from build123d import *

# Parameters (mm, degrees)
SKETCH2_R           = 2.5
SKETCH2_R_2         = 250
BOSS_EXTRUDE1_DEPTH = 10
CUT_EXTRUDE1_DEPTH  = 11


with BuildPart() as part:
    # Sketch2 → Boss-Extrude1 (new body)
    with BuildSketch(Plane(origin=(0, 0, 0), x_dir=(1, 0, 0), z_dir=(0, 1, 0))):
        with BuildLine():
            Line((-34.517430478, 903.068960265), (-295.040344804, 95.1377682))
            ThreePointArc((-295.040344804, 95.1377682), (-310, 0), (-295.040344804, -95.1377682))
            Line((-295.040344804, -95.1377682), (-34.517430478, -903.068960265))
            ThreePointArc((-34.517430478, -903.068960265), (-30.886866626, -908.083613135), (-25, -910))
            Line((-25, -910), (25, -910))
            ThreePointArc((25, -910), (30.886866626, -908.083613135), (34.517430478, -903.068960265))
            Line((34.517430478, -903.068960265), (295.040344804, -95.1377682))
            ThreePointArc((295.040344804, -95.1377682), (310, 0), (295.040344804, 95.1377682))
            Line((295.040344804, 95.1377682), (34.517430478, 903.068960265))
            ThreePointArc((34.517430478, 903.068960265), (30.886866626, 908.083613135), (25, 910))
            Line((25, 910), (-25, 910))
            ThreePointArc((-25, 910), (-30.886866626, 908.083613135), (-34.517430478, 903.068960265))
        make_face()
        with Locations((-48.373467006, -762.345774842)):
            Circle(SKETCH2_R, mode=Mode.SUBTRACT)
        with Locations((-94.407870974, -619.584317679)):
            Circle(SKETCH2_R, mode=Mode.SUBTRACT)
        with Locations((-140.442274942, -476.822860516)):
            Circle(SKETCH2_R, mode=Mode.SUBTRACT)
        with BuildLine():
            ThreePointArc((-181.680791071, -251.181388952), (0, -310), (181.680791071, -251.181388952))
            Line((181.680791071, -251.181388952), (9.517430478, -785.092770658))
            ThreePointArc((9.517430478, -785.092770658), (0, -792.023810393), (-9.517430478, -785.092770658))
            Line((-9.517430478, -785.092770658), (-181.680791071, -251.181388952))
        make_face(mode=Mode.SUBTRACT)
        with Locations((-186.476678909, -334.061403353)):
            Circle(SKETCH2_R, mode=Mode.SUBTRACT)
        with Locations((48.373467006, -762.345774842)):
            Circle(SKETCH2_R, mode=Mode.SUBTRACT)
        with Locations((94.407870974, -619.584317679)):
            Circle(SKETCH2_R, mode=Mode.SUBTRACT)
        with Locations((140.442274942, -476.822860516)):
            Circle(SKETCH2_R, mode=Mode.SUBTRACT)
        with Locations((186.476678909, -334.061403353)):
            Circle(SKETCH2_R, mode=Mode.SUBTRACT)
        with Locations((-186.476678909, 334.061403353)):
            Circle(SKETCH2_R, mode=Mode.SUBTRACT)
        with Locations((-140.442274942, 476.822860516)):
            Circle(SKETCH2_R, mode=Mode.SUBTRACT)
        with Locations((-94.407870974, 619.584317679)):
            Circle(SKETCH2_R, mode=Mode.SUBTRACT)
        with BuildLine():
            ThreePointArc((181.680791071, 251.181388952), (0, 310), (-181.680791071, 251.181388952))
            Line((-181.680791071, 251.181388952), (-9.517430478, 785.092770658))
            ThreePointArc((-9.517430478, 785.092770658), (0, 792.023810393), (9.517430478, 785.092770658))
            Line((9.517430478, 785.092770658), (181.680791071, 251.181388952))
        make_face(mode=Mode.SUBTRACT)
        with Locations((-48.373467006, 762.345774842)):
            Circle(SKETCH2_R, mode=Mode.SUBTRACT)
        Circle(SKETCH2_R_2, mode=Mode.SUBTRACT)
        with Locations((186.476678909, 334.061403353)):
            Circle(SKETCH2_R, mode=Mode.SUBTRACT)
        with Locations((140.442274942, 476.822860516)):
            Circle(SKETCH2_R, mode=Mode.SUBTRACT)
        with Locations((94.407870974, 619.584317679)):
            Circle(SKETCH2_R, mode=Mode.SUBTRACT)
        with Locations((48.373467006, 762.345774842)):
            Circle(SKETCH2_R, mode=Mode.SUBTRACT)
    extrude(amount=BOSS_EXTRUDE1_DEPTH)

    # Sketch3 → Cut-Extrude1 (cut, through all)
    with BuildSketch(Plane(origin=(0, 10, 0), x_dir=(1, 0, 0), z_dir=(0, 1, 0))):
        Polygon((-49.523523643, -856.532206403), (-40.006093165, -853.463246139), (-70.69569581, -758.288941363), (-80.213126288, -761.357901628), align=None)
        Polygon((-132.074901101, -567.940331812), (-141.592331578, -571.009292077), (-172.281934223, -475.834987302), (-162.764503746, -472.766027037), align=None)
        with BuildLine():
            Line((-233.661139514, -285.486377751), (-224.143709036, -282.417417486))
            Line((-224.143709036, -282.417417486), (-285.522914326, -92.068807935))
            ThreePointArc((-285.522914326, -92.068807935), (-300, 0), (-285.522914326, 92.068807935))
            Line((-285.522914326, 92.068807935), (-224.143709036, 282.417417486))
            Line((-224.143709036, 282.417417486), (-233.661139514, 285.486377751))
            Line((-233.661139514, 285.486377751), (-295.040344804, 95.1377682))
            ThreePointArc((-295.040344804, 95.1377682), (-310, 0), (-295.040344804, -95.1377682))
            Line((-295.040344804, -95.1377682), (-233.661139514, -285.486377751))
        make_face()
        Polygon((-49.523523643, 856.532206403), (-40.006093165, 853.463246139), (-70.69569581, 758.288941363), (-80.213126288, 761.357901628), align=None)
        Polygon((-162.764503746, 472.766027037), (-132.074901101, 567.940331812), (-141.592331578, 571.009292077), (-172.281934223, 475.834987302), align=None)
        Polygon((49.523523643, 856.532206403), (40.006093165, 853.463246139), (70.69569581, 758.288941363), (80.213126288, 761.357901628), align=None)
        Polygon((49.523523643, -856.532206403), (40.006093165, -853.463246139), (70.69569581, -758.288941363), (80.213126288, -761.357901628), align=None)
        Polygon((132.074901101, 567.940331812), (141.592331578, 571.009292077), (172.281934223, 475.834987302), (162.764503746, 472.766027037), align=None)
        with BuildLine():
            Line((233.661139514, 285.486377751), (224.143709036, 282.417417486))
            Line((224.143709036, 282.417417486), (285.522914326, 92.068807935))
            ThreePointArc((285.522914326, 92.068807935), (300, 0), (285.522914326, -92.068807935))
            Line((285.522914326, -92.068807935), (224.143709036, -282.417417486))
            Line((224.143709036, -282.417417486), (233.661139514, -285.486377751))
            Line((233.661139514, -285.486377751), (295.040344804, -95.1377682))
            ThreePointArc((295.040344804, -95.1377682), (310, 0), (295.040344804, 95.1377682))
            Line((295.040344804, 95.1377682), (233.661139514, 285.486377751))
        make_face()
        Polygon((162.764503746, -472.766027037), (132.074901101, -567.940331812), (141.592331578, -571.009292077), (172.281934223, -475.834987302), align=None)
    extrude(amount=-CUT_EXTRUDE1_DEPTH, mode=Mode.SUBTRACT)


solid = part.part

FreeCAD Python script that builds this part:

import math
import FreeCAD as App
import Part
import Sketcher
from FreeCAD import Vector


def add_polygon(sketch, points):
    """Adds a closed chain of lines whose ends are joined by coincident constraints."""
    first, n = sketch.GeometryCount, len(points)
    for a, b in zip(points, points[1:] + points[:1]):
        sketch.addGeometry(Part.LineSegment(App.Vector(*a, 0), App.Vector(*b, 0)), False)
    for i in range(n):
        sketch.addConstraint(Sketcher.Constraint("Coincident", first + i, 2, first + (i + 1) % n, 1))

doc = App.newDocument("Part")
params = doc.addObject("Spreadsheet::Sheet", "Params")
for row, (alias, value) in enumerate([
    ("sketch1_diameter", "5 mm"),
    ("sketch1_diameter2", "500 mm"),
    ("sketch1_radius", "310 mm"),
    ("sketch1_radius2", "10 mm"),
    ("sketch1_width", "50 mm"),
    ("pad1_length", "10 mm"),
    ("sketch2_radius", "300 mm"),
    ("sketch2_radius2", "310 mm"),
    ("sketch2_length", "100 mm"),
    ("sketch2_length2", "200 mm"),
], start=1):
    params.set(f"A{row}", alias)
    params.set(f"B{row}", "=" + value)
    params.setAlias(f"B{row}", alias)

body = doc.addObject("PartDesign::Body", "Body")

# Sketch on XZ plane
sketch1 = body.newObject("Sketcher::SketchObject", "Sketch")
sketch1.AttachmentSupport = (doc.getObject("XZ_Plane"), [""])
sketch1.MapMode = "FlatFace"
sketch1.addGeometry([
    Part.LineSegment(Vector(-34.5, -903.1, 0), Vector(-295, -95.1, 0)),  # 0
    Part.ArcOfCircle(Part.Circle(Vector(0, 0, 0), Vector(0, 0, 1), 310), math.radians(162), math.radians(198)),  # 1
    Part.LineSegment(Vector(-295, 95.1, 0), Vector(-34.5, 903.1, 0)),  # 2
    Part.ArcOfCircle(Part.Circle(Vector(-25, 900, 0), Vector(0, 0, 1), 10), math.radians(90), math.radians(162)),  # 3
    Part.LineSegment(Vector(-25, 910, 0), Vector(25, 910, 0)),  # 4
    Part.ArcOfCircle(Part.Circle(Vector(25, 900, 0), Vector(0, 0, 1), 10), math.radians(18), math.radians(90)),  # 5
    Part.LineSegment(Vector(34.5, 903.1, 0), Vector(295, 95.1, 0)),  # 6
    Part.ArcOfCircle(Part.Circle(Vector(0, 0, 0), Vector(0, 0, 1), 310), math.radians(-18), math.radians(18)),  # 7
    Part.LineSegment(Vector(295, -95.1, 0), Vector(34.5, -903.1, 0)),  # 8
    Part.ArcOfCircle(Part.Circle(Vector(25, -900, 0), Vector(0, 0, 1), 10), math.radians(-90), math.radians(-18)),  # 9
    Part.LineSegment(Vector(25, -910, 0), Vector(-25, -910, 0)),  # 10
    Part.ArcOfCircle(Part.Circle(Vector(-25, -900, 0), Vector(0, 0, 1), 10), math.radians(-162), math.radians(-90)),  # 11
    Part.Circle(Vector(-140.4, 476.8, 0), Vector(0, 0, 1), 2.5),  # 12
    Part.Circle(Vector(-94.4, 619.6, 0), Vector(0, 0, 1), 2.5),  # 13
    Part.Circle(Vector(-48.4, 762.3, 0), Vector(0, 0, 1), 2.5),  # 14
    Part.Circle(Vector(-186.5, 334.1, 0), Vector(0, 0, 1), 2.5),  # 15
    Part.Circle(Vector(48.4, 762.3, 0), Vector(0, 0, 1), 2.5),  # 16
    Part.Circle(Vector(94.4, 619.6, 0), Vector(0, 0, 1), 2.5),  # 17
    Part.LineSegment(Vector(-9.5, 785.1, 0), Vector(-181.7, 251.2, 0)),  # 18
    Part.ArcOfCircle(Part.Circle(Vector(0, 0, 0), Vector(0, 0, 1), 310), math.radians(54), math.radians(126)),  # 19
    Part.LineSegment(Vector(181.7, 251.2, 0), Vector(9.5, 785.1, 0)),  # 20
    Part.ArcOfCircle(Part.Circle(Vector(0, 782, 0), Vector(0, 0, 1), 10), math.radians(18), math.radians(162)),  # 21
    Part.Circle(Vector(140.4, 476.8, 0), Vector(0, 0, 1), 2.5),  # 22
    Part.Circle(Vector(186.5, 334.1, 0), Vector(0, 0, 1), 2.5),  # 23
    Part.Circle(Vector(-186.5, -334.1, 0), Vector(0, 0, 1), 2.5),  # 24
    Part.Circle(Vector(-140.4, -476.8, 0), Vector(0, 0, 1), 2.5),  # 25
    Part.Circle(Vector(-94.4, -619.6, 0), Vector(0, 0, 1), 2.5),  # 26
    Part.Circle(Vector(-48.4, -762.3, 0), Vector(0, 0, 1), 2.5),  # 27
    Part.Circle(Vector(0, 0, 0), Vector(0, 0, 1), 250),  # 28
    Part.Circle(Vector(186.5, -334.1, 0), Vector(0, 0, 1), 2.5),  # 29
    Part.LineSegment(Vector(9.5, -785.1, 0), Vector(181.7, -251.2, 0)),  # 30
    Part.ArcOfCircle(Part.Circle(Vector(0, 0, 0), Vector(0, 0, 1), 310), math.radians(-126), math.radians(-54)),  # 31
    Part.LineSegment(Vector(-181.7, -251.2, 0), Vector(-9.5, -785.1, 0)),  # 32
    Part.ArcOfCircle(Part.Circle(Vector(0, -782, 0), Vector(0, 0, 1), 10), math.radians(-162), math.radians(-18)),  # 33
    Part.Circle(Vector(48.4, -762.3, 0), Vector(0, 0, 1), 2.5),  # 34
    Part.Circle(Vector(94.4, -619.6, 0), Vector(0, 0, 1), 2.5),  # 35
    Part.Circle(Vector(140.4, -476.8, 0), Vector(0, 0, 1), 2.5),  # 36
], False)
sketch1.addConstraint([
    Sketcher.Constraint("Tangent", 0, 2, 1, 2),
    Sketcher.Constraint("Tangent", 1, 1, 2, 1),
    Sketcher.Constraint("Tangent", 2, 2, 3, 2),
    Sketcher.Constraint("Tangent", 3, 1, 4, 1),
    Sketcher.Constraint("Tangent", 4, 2, 5, 2),
    Sketcher.Constraint("Tangent", 5, 1, 6, 1),
    Sketcher.Constraint("Tangent", 6, 2, 7, 2),
    Sketcher.Constraint("Tangent", 7, 1, 8, 1),
    Sketcher.Constraint("Tangent", 8, 2, 9, 2),
    Sketcher.Constraint("Tangent", 9, 1, 10, 1),
    Sketcher.Constraint("Tangent", 10, 2, 11, 2),
    Sketcher.Constraint("Tangent", 11, 1, 0, 1),
    Sketcher.Constraint("Coincident", 18, 2, 19, 2),
    Sketcher.Constraint("Coincident", 19, 1, 20, 1),
    Sketcher.Constraint("Tangent", 20, 2, 21, 1),
    Sketcher.Constraint("Tangent", 21, 2, 18, 1),
    Sketcher.Constraint("Coincident", 30, 2, 31, 2),
    Sketcher.Constraint("Coincident", 31, 1, 32, 1),
    Sketcher.Constraint("Tangent", 32, 2, 33, 1),
    Sketcher.Constraint("Tangent", 33, 2, 30, 1),
    Sketcher.Constraint("Horizontal", 4),
    Sketcher.Constraint("Horizontal", 10),
    Sketcher.Constraint("Coincident", 1, 3, -1, 1),
    Sketcher.Constraint("Coincident", 7, 3, -1, 1),
    Sketcher.Constraint("Coincident", 19, 3, -1, 1),
    Sketcher.Constraint("Coincident", 28, 3, -1, 1),
    Sketcher.Constraint("Coincident", 31, 3, -1, 1),
    Sketcher.Constraint("Equal", 3, 5),
    Sketcher.Constraint("Equal", 1, 7),
    Sketcher.Constraint("Equal", 5, 9),
    Sketcher.Constraint("Equal", 9, 11),
    Sketcher.Constraint("Equal", 12, 13),
    Sketcher.Constraint("Equal", 13, 14),
    Sketcher.Constraint("Equal", 14, 15),
    Sketcher.Constraint("Equal", 15, 16),
    Sketcher.Constraint("Equal", 16, 17),
    Sketcher.Constraint("Equal", 7, 19),
    Sketcher.Constraint("Equal", 11, 21),
    Sketcher.Constraint("Equal", 17, 22),
    Sketcher.Constraint("Equal", 22, 23),
    Sketcher.Constraint("Equal", 23, 24),
    Sketcher.Constraint("Equal", 24, 25),
    Sketcher.Constraint("Equal", 25, 26),
    Sketcher.Constraint("Equal", 26, 27),
    Sketcher.Constraint("Equal", 27, 29),
    Sketcher.Constraint("Equal", 19, 31),
    Sketcher.Constraint("Equal", 21, 33),
    Sketcher.Constraint("Equal", 29, 34),
    Sketcher.Constraint("Equal", 34, 35),
    Sketcher.Constraint("Equal", 35, 36),
    Sketcher.Constraint("Symmetric", 3, 3, 9, 3, -1, 1),
    Sketcher.Constraint("Symmetric", 23, 3, 24, 3, -1, 1),
    Sketcher.Constraint("Symmetric", 22, 3, 25, 3, -1, 1),
    Sketcher.Constraint("Symmetric", 17, 3, 26, 3, -1, 1),
    Sketcher.Constraint("Symmetric", 16, 3, 27, 3, -1, 1),
    Sketcher.Constraint("Symmetric", 15, 3, 29, 3, -1, 1),
    Sketcher.Constraint("Symmetric", 21, 3, 33, 3, -1, 1),
    Sketcher.Constraint("Symmetric", 14, 3, 34, 3, -1, 1),
    Sketcher.Constraint("Symmetric", 13, 3, 35, 3, -1, 1),
    Sketcher.Constraint("Symmetric", 12, 3, 36, 3, -1, 1),
    Sketcher.Constraint("Symmetric", 14, 3, 16, 3, -2),
    Sketcher.Constraint("Symmetric", 13, 3, 17, 3, -2),
    Sketcher.Constraint("Symmetric", 12, 3, 22, 3, -2),
    Sketcher.Constraint("Symmetric", 15, 3, 23, 3, -2),
    Sketcher.Constraint("PointOnObject", 21, 3, -2),
    Sketcher.Constraint("Parallel", 0, 6),
    Sketcher.Constraint("Parallel", 8, 18),
    Sketcher.Constraint("Parallel", 6, 20),
    Sketcher.Constraint("Parallel", 18, 30),
    Sketcher.Constraint("Parallel", 20, 32),
    Sketcher.Constraint("Vertical", 5, 3, 9, 3),
    Sketcher.Constraint("Diameter", 12, 5.0),
    Sketcher.Constraint("Diameter", 28, 500.0),
    Sketcher.Constraint("Radius", 1, 310.0),
    Sketcher.Constraint("Radius", 3, 10.0),
    Sketcher.Constraint("DistanceX", 4, 1, 4, 2, 50.0),
    Sketcher.Constraint("DistanceY", -1, 1, 3, 3, 900.0),
    Sketcher.Constraint("DistanceY", -1, 1, 12, 3, 476.822861),
    Sketcher.Constraint("DistanceX", 13, 3, -1, 1, 94.407871),
    Sketcher.Constraint("DistanceX", 15, 3, -1, 1, 186.476679),
    Sketcher.Constraint("DistanceY", -1, 1, 21, 3, 782.02381),
    Sketcher.Constraint("DistanceX", 15, 3, 14, 3, 138.103212),
    Sketcher.Constraint("DistanceY", 15, 3, 14, 3, 428.284371),
    Sketcher.Constraint("DistanceX", 12, 3, 16, 3, 188.815742),
    Sketcher.Constraint("DistanceY", -1, 1, 13, 3, 619.584318),
    Sketcher.Constraint("DistanceY", -1, 1, 14, 3, 762.345775),
])
sketch1.setExpression("Constraints[71]", "Params.sketch1_diameter")
sketch1.setExpression("Constraints[72]", "Params.sketch1_diameter2")
sketch1.setExpression("Constraints[73]", "Params.sketch1_radius")
sketch1.setExpression("Constraints[74]", "Params.sketch1_radius2")
sketch1.setExpression("Constraints[75]", "Params.sketch1_width")
pad1 = body.newObject("PartDesign::Pad", "Pad")
pad1.Profile = sketch1
pad1.setExpression("Length", "Params.pad1_length")
pad1.Reversed = True

# Sketch on XZ plane
sketch2 = body.newObject("Sketcher::SketchObject", "Sketch001")
sketch2.AttachmentSupport = (doc.getObject("XZ_Plane"), [""])
sketch2.MapMode = "FlatFace"
sketch2.AttachmentOffset = App.Placement(Vector(0, 0, -10), App.Rotation())
add_polygon(sketch2, [(-49.523524, 856.532206), (-40.006093, 853.463246), (-70.695696, 758.288941), (-80.213126, 761.357902)])  # lines 0-3
add_polygon(sketch2, [(-141.592332, 571.009292), (-132.074901, 567.940332), (-162.764504, 472.766027), (-172.281934, 475.834987)])  # lines 4-7
sketch2.addGeometry(Part.LineSegment(Vector(-233.66114, 285.486378, 0), Vector(-224.143709, 282.417417, 0)), False)  # 8
sketch2.addGeometry(Part.LineSegment(Vector(-224.143709, 282.417417, 0), Vector(-285.522914, 92.068808, 0)), False)  # 9
sketch2.addGeometry(Part.ArcOfCircle(Part.Circle(Vector(0, 0, 0), Vector(0, 0, 1), 300), math.radians(162.12773), math.radians(197.87227)), False)  # 10
sketch2.addGeometry(Part.LineSegment(Vector(-285.522914, -92.068808, 0), Vector(-224.143709, -282.417417, 0)), False)  # 11
sketch2.addGeometry(Part.LineSegment(Vector(-224.143709, -282.417417, 0), Vector(-233.66114, -285.486378, 0)), False)  # 12
sketch2.addGeometry(Part.LineSegment(Vector(-233.66114, -285.486378, 0), Vector(-295.040345, -95.137768, 0)), False)  # 13
sketch2.addGeometry(Part.ArcOfCircle(Part.Circle(Vector(0, 0, 0), Vector(0, 0, 1), 310), math.radians(162.12773), math.radians(197.87227)), False)  # 14
sketch2.addGeometry(Part.LineSegment(Vector(-295.040345, 95.137768, 0), Vector(-233.66114, 285.486378, 0)), False)  # 15
add_polygon(sketch2, [(-40.006093, -853.463246), (-49.523524, -856.532206), (-80.213126, -761.357902), (-70.695696, -758.288941)])  # lines 16-19
add_polygon(sketch2, [(-162.764504, -472.766027), (-132.074901, -567.940332), (-141.592332, -571.009292), (-172.281934, -475.834987)])  # lines 20-23
add_polygon(sketch2, [(49.523524, -856.532206), (40.006093, -853.463246), (70.695696, -758.288941), (80.213126, -761.357902)])  # lines 24-27
add_polygon(sketch2, [(40.006093, 853.463246), (49.523524, 856.532206), (80.213126, 761.357902), (70.695696, 758.288941)])  # lines 28-31
add_polygon(sketch2, [(141.592332, -571.009292), (132.074901, -567.940332), (162.764504, -472.766027), (172.281934, -475.834987)])  # lines 32-35
sketch2.addGeometry(Part.LineSegment(Vector(233.66114, -285.486378, 0), Vector(224.143709, -282.417417, 0)), False)  # 36
sketch2.addGeometry(Part.LineSegment(Vector(224.143709, -282.417417, 0), Vector(285.522914, -92.068808, 0)), False)  # 37
sketch2.addGeometry(Part.ArcOfCircle(Part.Circle(Vector(0, 0, 0), Vector(0, 0, 1), 300), math.radians(-17.87227), math.radians(17.87227)), False)  # 38
sketch2.addGeometry(Part.LineSegment(Vector(285.522914, 92.068808, 0), Vector(224.143709, 282.417417, 0)), False)  # 39
sketch2.addGeometry(Part.LineSegment(Vector(224.143709, 282.417417, 0), Vector(233.66114, 285.486378, 0)), False)  # 40
sketch2.addGeometry(Part.LineSegment(Vector(233.66114, 285.486378, 0), Vector(295.040345, 95.137768, 0)), False)  # 41
sketch2.addGeometry(Part.ArcOfCircle(Part.Circle(Vector(0, 0, 0), Vector(0, 0, 1), 310), math.radians(-17.87227), math.radians(17.87227)), False)  # 42
sketch2.addGeometry(Part.LineSegment(Vector(295.040345, -95.137768, 0), Vector(233.66114, -285.486378, 0)), False)  # 43
add_polygon(sketch2, [(162.764504, 472.766027), (132.074901, 567.940332), (141.592332, 571.009292), (172.281934, 475.834987)])  # lines 44-47
sketch2.addConstraint([
    Sketcher.Constraint("Coincident", 8, 2, 9, 1),
    Sketcher.Constraint("Tangent", 9, 2, 10, 1),
    Sketcher.Constraint("Tangent", 10, 2, 11, 1),
    Sketcher.Constraint("Coincident", 11, 2, 12, 1),
    Sketcher.Constraint("Coincident", 12, 2, 13, 1),
    Sketcher.Constraint("Tangent", 13, 2, 14, 2),
    Sketcher.Constraint("Tangent", 14, 1, 15, 1),
    Sketcher.Constraint("Coincident", 15, 2, 8, 1),
    Sketcher.Constraint("Coincident", 36, 2, 37, 1),
    Sketcher.Constraint("Tangent", 37, 2, 38, 1),
    Sketcher.Constraint("Tangent", 38, 2, 39, 1),
    Sketcher.Constraint("Coincident", 39, 2, 40, 1),
    Sketcher.Constraint("Coincident", 40, 2, 41, 1),
    Sketcher.Constraint("Tangent", 41, 2, 42, 2),
    Sketcher.Constraint("Tangent", 42, 1, 43, 1),
    Sketcher.Constraint("Coincident", 43, 2, 36, 1),
    Sketcher.Constraint("Coincident", 10, 3, -1, 1),
    Sketcher.Constraint("Coincident", 14, 3, -1, 1),
    Sketcher.Constraint("Coincident", 38, 3, -1, 1),
    Sketcher.Constraint("Coincident", 42, 3, -1, 1),
    Sketcher.Constraint("Equal", 10, 38),
    Sketcher.Constraint("Equal", 14, 42),
    Sketcher.Constraint("Symmetric", 0, 2, 24, 2, -1, 1),
    Sketcher.Constraint("Symmetric", 1, 2, 25, 2, -1, 1),
    Sketcher.Constraint("Symmetric", 2, 2, 26, 2, -1, 1),
    Sketcher.Constraint("Symmetric", 3, 2, 27, 2, -1, 1),
    Sketcher.Constraint("Symmetric", 16, 2, 28, 2, -1, 1),
    Sketcher.Constraint("Symmetric", 17, 2, 29, 2, -1, 1),
    Sketcher.Constraint("Symmetric", 18, 2, 30, 2, -1, 1),
    Sketcher.Constraint("Symmetric", 19, 2, 31, 2, -1, 1),
    Sketcher.Constraint("Symmetric", 4, 2, 32, 2, -1, 1),
    Sketcher.Constraint("Symmetric", 5, 2, 33, 2, -1, 1),
    Sketcher.Constraint("Symmetric", 6, 2, 34, 2, -1, 1),
    Sketcher.Constraint("Symmetric", 7, 2, 35, 2, -1, 1),
    Sketcher.Constraint("Symmetric", 8, 2, 36, 2, -1, 1),
    Sketcher.Constraint("Symmetric", 11, 2, 39, 2, -1, 1),
    Sketcher.Constraint("Symmetric", 12, 2, 40, 2, -1, 1),
    Sketcher.Constraint("Symmetric", 15, 2, 43, 2, -1, 1),
    Sketcher.Constraint("Symmetric", 20, 2, 44, 2, -1, 1),
    Sketcher.Constraint("Symmetric", 21, 2, 45, 2, -1, 1),
    Sketcher.Constraint("Symmetric", 22, 2, 46, 2, -1, 1),
    Sketcher.Constraint("Symmetric", 23, 2, 47, 2, -1, 1),
    Sketcher.Constraint("Symmetric", 19, 2, 24, 2, -2),
    Sketcher.Constraint("Symmetric", 18, 2, 25, 2, -2),
    Sketcher.Constraint("Symmetric", 17, 2, 26, 2, -2),
    Sketcher.Constraint("Symmetric", 16, 2, 27, 2, -2),
    Sketcher.Constraint("Symmetric", 20, 2, 32, 2, -2),
    Sketcher.Constraint("Symmetric", 23, 2, 33, 2, -2),
    Sketcher.Constraint("Symmetric", 22, 2, 34, 2, -2),
    Sketcher.Constraint("Symmetric", 21, 2, 35, 2, -2),
    Sketcher.Constraint("Symmetric", 11, 2, 36, 2, -2),
    Sketcher.Constraint("Symmetric", 15, 2, 40, 2, -2),
    Sketcher.Constraint("Perpendicular", 0, 1),
    Sketcher.Constraint("Perpendicular", 1, 2),
    Sketcher.Constraint("Perpendicular", 2, 3),
    Sketcher.Constraint("Perpendicular", 3, 4),
    Sketcher.Constraint("Perpendicular", 4, 5),
    Sketcher.Constraint("Perpendicular", 5, 6),
    Sketcher.Constraint("Perpendicular", 6, 7),
    Sketcher.Constraint("Perpendicular", 7, 8),
    Sketcher.Constraint("Perpendicular", 8, 9),
    Sketcher.Constraint("Perpendicular", 12, 13),
    Sketcher.Constraint("Equal", 2, 4),
    Sketcher.Constraint("Equal", 3, 5),
    Sketcher.Constraint("Equal", 6, 8),
    Sketcher.Constraint("Radius", 10, 300.0),
    Sketcher.Constraint("Radius", 14, 310.0),
    Sketcher.Constraint("Distance", 1, 100.0),
    Sketcher.Constraint("Distance", 9, 200.0),
    Sketcher.Constraint("DistanceY", -1, 1, 2, 2, 761.357902),
    Sketcher.Constraint("DistanceX", 4, 2, -1, 1, 132.074901),
    Sketcher.Constraint("DistanceY", -1, 1, 1, 2, 758.288941),
    Sketcher.Constraint("DistanceY", -1, 1, 4, 2, 567.940332),
    Sketcher.Constraint("DistanceX", 5, 2, 0, 2, 122.758411),
])
sketch2.setExpression("Constraints[97]", "Params.sketch2_radius")
sketch2.setExpression("Constraints[98]", "Params.sketch2_radius2")
sketch2.setExpression("Constraints[99]", "Params.sketch2_length")
sketch2.setExpression("Constraints[100]", "Params.sketch2_length2")
pocket1 = body.newObject("PartDesign::Pocket", "Pocket")
pocket1.Profile = sketch2
pocket1.Type = "ThroughAll"
pocket1.Reversed = True

doc.recompute()
